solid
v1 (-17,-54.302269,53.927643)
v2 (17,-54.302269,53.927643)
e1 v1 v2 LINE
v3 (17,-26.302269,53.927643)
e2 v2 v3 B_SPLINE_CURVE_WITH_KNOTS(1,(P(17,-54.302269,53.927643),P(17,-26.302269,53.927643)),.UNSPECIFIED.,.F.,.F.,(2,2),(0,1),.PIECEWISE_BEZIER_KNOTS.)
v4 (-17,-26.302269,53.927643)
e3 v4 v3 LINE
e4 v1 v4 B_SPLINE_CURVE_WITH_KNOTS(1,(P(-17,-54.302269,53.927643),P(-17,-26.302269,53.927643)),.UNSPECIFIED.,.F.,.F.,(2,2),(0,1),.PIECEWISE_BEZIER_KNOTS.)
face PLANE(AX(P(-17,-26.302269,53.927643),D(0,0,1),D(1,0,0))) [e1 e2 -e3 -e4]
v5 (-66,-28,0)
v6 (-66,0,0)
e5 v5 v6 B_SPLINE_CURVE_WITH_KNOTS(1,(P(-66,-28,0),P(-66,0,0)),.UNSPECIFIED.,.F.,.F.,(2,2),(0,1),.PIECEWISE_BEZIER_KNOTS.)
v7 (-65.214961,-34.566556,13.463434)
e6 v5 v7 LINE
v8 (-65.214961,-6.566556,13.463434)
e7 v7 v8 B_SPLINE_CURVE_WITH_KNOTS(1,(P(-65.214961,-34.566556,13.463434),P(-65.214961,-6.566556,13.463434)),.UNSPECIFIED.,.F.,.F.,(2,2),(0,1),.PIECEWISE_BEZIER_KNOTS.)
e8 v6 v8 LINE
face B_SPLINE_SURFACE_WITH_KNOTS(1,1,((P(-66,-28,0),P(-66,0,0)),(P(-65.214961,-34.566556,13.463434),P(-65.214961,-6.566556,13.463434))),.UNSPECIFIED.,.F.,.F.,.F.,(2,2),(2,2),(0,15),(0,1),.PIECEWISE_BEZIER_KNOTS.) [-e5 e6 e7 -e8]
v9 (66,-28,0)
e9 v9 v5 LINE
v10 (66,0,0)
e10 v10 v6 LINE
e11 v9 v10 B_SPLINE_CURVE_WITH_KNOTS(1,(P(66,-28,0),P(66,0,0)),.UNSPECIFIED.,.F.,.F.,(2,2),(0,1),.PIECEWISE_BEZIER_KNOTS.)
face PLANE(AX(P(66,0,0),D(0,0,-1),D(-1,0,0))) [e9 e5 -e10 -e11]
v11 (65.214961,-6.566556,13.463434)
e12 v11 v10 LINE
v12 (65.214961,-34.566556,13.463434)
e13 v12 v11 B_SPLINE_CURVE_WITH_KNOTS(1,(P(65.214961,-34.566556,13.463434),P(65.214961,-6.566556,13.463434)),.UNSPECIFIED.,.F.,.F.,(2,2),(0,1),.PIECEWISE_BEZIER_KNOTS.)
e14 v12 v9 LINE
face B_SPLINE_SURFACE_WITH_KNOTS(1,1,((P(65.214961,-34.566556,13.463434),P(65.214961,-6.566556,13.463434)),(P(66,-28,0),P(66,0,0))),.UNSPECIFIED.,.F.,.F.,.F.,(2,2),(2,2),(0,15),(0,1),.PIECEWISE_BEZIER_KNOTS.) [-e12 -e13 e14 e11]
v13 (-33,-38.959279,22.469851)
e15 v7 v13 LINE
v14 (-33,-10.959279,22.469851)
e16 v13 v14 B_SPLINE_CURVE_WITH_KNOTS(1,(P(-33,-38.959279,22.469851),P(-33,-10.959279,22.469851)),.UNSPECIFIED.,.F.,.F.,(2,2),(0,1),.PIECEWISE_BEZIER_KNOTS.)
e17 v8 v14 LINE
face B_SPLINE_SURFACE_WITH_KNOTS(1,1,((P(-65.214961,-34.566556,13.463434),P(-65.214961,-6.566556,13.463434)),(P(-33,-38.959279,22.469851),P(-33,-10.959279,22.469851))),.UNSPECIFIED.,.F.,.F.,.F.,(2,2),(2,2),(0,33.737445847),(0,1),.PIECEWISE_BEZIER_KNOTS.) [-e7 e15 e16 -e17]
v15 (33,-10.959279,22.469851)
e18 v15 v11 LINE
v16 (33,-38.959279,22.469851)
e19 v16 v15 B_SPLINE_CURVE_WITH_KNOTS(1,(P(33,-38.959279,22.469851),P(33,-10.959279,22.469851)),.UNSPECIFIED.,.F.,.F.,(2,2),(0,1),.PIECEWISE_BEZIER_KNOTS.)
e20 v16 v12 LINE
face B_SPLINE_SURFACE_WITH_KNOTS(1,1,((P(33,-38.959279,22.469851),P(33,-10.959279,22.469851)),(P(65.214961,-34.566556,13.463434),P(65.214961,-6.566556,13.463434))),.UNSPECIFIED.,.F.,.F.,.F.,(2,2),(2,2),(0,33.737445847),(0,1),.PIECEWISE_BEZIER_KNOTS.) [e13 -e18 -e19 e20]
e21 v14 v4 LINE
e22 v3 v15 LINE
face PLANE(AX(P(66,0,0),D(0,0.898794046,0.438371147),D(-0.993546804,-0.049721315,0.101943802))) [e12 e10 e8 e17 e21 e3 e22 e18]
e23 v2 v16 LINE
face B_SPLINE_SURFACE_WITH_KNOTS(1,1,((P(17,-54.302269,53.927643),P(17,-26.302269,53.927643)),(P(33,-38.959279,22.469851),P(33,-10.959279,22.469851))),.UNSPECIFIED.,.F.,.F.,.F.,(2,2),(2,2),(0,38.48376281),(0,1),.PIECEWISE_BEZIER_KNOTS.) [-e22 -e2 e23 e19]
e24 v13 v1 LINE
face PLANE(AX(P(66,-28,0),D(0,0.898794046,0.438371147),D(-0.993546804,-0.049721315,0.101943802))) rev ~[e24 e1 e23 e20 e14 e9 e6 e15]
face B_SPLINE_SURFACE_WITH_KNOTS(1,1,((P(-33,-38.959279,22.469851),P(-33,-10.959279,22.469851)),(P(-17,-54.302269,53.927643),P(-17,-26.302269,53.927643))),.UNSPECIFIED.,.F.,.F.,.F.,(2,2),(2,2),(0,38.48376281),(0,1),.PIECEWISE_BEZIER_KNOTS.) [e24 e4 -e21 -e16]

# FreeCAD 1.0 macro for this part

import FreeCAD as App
import Part
import Sketcher

V = App.Vector
Q = App.Units.Quantity


def add_polygon(sketch, points):
    """Adds a closed chain of lines whose ends are joined by coincident constraints."""
    first, n = sketch.GeometryCount, len(points)
    for a, b in zip(points, points[1:] + points[:1]):
        sketch.addGeometry(Part.LineSegment(App.Vector(*a, 0), App.Vector(*b, 0)), False)
    for i in range(n):
        sketch.addConstraint(Sketcher.Constraint("Coincident", first + i, 2, first + (i + 1) % n, 1))

doc = App.newDocument("Part")
params = doc.addObject("Spreadsheet::Sheet", "Params")
for row, (alias, value) in enumerate([
    ("sketch1_width", "132 mm"),
    ("sketch1_width2", "34 mm"),
    ("sketch1_length", "15 mm"),
    ("sketch2_width", "132 mm"),
    ("sketch2_width2", "34 mm"),
    ("sketch2_length", "15 mm"),
], start=1):
    params.set(f"A{row}", alias)
    params.set(f"B{row}", "=" + value)
    params.setAlias(f"B{row}", alias)

body = doc.addObject("PartDesign::Body", "Body")

sketch1 = body.newObject("Sketcher::SketchObject", "Sketch")
sketch1.Placement = App.Placement(V(0, -22.619261, -11.032151), App.Rotation(V(-1, 0, 0), V(0, -0.438371147, 0.898794046), V(0, 0.898794046, 0.438371147), "ZXY"))
add_polygon(sketch1, [(-66, 12), (66, 12), (65, 27), (33, 37), (17, 72), (-17, 72), (-33, 37), (-65, 27)])
sketch1.addConstraint(Sketcher.Constraint("Horizontal", 0))
sketch1.addConstraint(Sketcher.Constraint("Horizontal", 4))
sketch1.addConstraint(Sketcher.Constraint("Symmetric", 2, 2, 5, 2, -2))
sketch1.addConstraint(Sketcher.Constraint("Symmetric", 1, 2, 6, 2, -2))
sketch1.addConstraint(Sketcher.Constraint("Equal", 3, 5))
sketch1.addConstraint(Sketcher.Constraint("Equal", 1, 7))
sketch1.addConstraint(Sketcher.Constraint("DistanceX", 0, 1, 0, 2, 132.0))
sketch1.addConstraint(Sketcher.Constraint("DistanceX", 4, 2, 4, 1, 34.0))
sketch1.addConstraint(Sketcher.Constraint("Angle", 1, Q("93 deg")))
sketch1.addConstraint(Sketcher.Constraint("Distance", 1, 15.0))
sketch1.addConstraint(Sketcher.Constraint("DistanceX", -1, 1, 2, 2, 33.0))
sketch1.addConstraint(Sketcher.Constraint("DistanceY", 0, 2, 2, 2, 25.0))
sketch1.addConstraint(Sketcher.Constraint("DistanceY", 2, 2, 3, 2, 35.0))
sketch1.addConstraint(Sketcher.Constraint("DistanceY", -1, 1, 0, 2, 12.274392))
sketch1.setExpression("Constraints[14]", "Params.sketch1_width")
sketch1.setExpression("Constraints[15]", "Params.sketch1_width2")
sketch1.setExpression("Constraints[17]", "Params.sketch1_length")

sketch2 = body.newObject("Sketcher::SketchObject", "Sketch001")
sketch2.Placement = App.Placement(V(0, 0, 0), App.Rotation(V(-1, 0, 0), V(0, -0.438371147, 0.898794046), V(0, 0.898794046, 0.438371147), "ZXY"))
add_polygon(sketch2, [(-66, 0), (66, 0), (65, 15), (33, 25), (17, 60), (-17, 60), (-33, 25), (-65, 15)])
sketch2.addConstraint(Sketcher.Constraint("Horizontal", 0))
sketch2.addConstraint(Sketcher.Constraint("Horizontal", 4))
sketch2.addConstraint(Sketcher.Constraint("Symmetric", 0, 2, 7, 2, -1, 1))
sketch2.addConstraint(Sketcher.Constraint("Symmetric", 2, 2, 5, 2, -2))
sketch2.addConstraint(Sketcher.Constraint("Symmetric", 1, 2, 6, 2, -2))
sketch2.addConstraint(Sketcher.Constraint("Equal", 3, 5))
sketch2.addConstraint(Sketcher.Constraint("DistanceX", 0, 1, 0, 2, 132.0))
sketch2.addConstraint(Sketcher.Constraint("DistanceX", 4, 2, 4, 1, 34.0))
sketch2.addConstraint(Sketcher.Constraint("Angle", 1, Q("93 deg")))
sketch2.addConstraint(Sketcher.Constraint("Distance", 1, 15.0))
sketch2.addConstraint(Sketcher.Constraint("DistanceX", -1, 1, 2, 2, 33.0))
sketch2.addConstraint(Sketcher.Constraint("DistanceY", -1, 1, 2, 2, 25.0))
sketch2.addConstraint(Sketcher.Constraint("DistanceY", -1, 1, 3, 2, 60.0))
sketch2.setExpression("Constraints[14]", "Params.sketch2_width")
sketch2.setExpression("Constraints[15]", "Params.sketch2_width2")
sketch2.setExpression("Constraints[17]", "Params.sketch2_length")

additiveloft = body.newObject("PartDesign::AdditiveLoft", "AdditiveLoft")
additiveloft.Profile = sketch1
additiveloft.Sections = [sketch2]

doc.recompute()
